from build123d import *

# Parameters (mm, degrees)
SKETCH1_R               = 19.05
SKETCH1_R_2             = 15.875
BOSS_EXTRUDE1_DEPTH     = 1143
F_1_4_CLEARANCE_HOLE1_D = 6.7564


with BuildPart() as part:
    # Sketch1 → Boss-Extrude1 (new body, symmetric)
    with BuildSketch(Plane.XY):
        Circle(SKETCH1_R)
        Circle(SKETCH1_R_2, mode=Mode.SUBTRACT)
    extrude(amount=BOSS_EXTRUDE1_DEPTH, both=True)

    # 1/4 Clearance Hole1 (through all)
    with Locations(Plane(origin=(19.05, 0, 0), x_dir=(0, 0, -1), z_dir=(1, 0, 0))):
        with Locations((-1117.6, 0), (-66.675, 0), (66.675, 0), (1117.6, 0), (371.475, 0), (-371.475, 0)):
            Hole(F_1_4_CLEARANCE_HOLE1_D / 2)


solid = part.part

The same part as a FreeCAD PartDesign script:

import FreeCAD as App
import Part
import Sketcher
from FreeCAD import Vector
Q = App.Units.Quantity

doc = App.newDocument("Part")
body = doc.addObject("PartDesign::Body", "Body")

sketch1 = body.newObject("Sketcher::SketchObject", "Sketch")
sketch1.AttachmentSupport = (doc.getObject("XY_Plane"), [""])
sketch1.MapMode = "FlatFace"
sketch1.addGeometry([
    Part.Circle(Vector(0, 0, 0), Vector(0, 0, 1), 19),
    Part.Circle(Vector(0, 0, 0), Vector(0, 0, 1), 16),
], False)
sketch1.addConstraint([
    Sketcher.Constraint("Coincident", 0, 3, -1, 1),
    Sketcher.Constraint("Coincident", 1, 3, -1, 1),
    Sketcher.Constraint("Diameter", 0, Q("1.5 in")),
    Sketcher.Constraint("Diameter", 1, Q("1.25 in")),
])
pad1 = body.newObject("PartDesign::Pad", "Pad")
pad1.Profile = sketch1
pad1.Length = Q("90 in")
pad1.Midplane = True

sketch2 = body.newObject("Sketcher::SketchObject", "Sketch001")
sketch2.AttachmentSupport = (doc.getObject("YZ_Plane"), [""])
sketch2.MapMode = "FlatFace"
sketch2.AttachmentOffset = App.Placement(Vector(0, 0, 0.75 * 25.4), App.Rotation())
sketch2.addGeometry([
    Part.Circle(Vector(0, 1117.6, 0), Vector(0, 0, 1), 3.4),
    Part.Circle(Vector(0, 66.7, 0), Vector(0, 0, 1), 3.4),
    Part.Circle(Vector(0, -66.7, 0), Vector(0, 0, 1), 3.4),
    Part.Circle(Vector(0, -1117.6, 0), Vector(0, 0, 1), 3.4),
    Part.Circle(Vector(0, -371.5, 0), Vector(0, 0, 1), 3.4),
    Part.Circle(Vector(0, 371.5, 0), Vector(0, 0, 1), 3.4),
], False)
sketch2.addConstraint([
    Sketcher.Constraint("Equal", 0, 1),
    Sketcher.Constraint("Equal", 1, 2),
    Sketcher.Constraint("Equal", 2, 3),
    Sketcher.Constraint("Equal", 3, 4),
    Sketcher.Constraint("Equal", 4, 5),
    Sketcher.Constraint("Symmetric", 1, 3, 2, 3, -1, 1),
    Sketcher.Constraint("Symmetric", 0, 3, 3, 3, -1, 1),
    Sketcher.Constraint("Symmetric", 4, 3, 5, 3, -1, 1),
    Sketcher.Constraint("PointOnObject", 0, 3, -2),
    Sketcher.Constraint("PointOnObject", 1, 3, -2),
    Sketcher.Constraint("PointOnObject", 4, 3, -2),
    Sketcher.Constraint("Diameter", 0, Q("0.266 in")),
    Sketcher.Constraint("DistanceY", -1, 1, 0, 3, Q("44 in")),
    Sketcher.Constraint("DistanceY", 4, 3, 2, 3, Q("12 in")),
    Sketcher.Constraint("DistanceY", 2, 3, 1, 3, Q("5.25 in")),
])
doc.recompute()
hole = body.newObject("PartDesign::Hole", "Hole")
hole.Profile = sketch2
hole.ThreadType = "None"
hole.Diameter = Q("0.266 in")
hole.DepthType = "ThroughAll"

doc.recompute()
